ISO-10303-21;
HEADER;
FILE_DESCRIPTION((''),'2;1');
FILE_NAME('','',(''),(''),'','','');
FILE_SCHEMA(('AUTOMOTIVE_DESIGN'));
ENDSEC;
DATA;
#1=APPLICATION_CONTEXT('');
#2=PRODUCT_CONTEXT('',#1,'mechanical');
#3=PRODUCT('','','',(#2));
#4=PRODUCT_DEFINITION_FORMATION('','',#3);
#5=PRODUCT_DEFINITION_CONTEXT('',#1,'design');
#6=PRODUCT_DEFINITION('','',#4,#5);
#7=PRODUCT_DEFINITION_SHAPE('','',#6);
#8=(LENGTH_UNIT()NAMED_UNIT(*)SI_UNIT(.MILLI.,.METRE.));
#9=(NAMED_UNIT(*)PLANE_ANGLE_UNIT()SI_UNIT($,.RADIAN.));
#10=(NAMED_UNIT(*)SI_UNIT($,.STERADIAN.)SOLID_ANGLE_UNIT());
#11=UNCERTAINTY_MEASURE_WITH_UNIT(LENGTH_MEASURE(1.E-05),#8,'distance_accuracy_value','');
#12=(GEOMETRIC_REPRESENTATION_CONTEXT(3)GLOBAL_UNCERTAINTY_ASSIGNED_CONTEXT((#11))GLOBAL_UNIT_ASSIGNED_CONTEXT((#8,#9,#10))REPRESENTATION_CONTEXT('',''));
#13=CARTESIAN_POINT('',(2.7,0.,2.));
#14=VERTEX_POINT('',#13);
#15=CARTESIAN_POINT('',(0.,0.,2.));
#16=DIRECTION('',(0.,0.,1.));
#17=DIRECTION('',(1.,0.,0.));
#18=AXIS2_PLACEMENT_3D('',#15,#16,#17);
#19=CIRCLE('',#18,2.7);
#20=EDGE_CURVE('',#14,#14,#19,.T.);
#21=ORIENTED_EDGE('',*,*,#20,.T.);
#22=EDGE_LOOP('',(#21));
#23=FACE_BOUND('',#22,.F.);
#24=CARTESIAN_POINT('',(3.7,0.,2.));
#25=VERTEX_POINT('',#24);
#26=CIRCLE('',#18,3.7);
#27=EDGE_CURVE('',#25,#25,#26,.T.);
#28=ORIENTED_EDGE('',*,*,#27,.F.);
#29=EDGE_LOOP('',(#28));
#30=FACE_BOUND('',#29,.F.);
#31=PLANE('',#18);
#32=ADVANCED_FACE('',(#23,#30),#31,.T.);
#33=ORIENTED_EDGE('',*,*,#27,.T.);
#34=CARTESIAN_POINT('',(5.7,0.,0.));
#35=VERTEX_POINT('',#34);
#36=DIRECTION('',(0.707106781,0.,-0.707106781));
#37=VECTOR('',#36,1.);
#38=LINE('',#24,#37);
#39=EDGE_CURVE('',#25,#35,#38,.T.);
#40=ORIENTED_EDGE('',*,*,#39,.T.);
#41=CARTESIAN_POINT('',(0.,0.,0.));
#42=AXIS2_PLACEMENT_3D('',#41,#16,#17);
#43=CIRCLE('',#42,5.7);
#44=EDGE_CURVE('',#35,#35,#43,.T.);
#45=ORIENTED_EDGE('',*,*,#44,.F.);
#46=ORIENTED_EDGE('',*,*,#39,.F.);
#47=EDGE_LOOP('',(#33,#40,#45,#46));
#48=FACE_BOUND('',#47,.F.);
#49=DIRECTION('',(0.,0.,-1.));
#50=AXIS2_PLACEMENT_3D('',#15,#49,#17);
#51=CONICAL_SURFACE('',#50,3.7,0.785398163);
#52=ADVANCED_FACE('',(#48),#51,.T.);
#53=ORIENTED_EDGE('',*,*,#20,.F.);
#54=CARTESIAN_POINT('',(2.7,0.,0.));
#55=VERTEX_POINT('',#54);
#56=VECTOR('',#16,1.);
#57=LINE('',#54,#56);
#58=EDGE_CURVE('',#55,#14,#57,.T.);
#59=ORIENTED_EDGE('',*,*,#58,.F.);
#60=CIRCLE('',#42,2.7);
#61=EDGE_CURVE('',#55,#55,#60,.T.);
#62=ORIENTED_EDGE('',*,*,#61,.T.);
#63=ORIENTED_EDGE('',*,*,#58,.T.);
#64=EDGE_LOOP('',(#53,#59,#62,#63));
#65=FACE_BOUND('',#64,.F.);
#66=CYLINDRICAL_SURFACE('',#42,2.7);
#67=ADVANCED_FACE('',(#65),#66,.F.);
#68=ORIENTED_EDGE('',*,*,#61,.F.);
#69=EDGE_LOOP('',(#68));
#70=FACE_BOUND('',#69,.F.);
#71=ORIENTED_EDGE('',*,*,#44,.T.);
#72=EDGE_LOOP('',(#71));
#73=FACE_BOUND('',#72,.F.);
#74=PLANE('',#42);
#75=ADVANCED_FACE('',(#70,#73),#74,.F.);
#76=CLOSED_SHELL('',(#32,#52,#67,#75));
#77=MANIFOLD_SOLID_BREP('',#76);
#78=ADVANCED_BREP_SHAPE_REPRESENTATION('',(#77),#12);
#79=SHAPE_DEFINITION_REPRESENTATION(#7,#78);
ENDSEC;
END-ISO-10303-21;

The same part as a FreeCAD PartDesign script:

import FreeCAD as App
import Part
import Sketcher
from FreeCAD import Vector
Q = App.Units.Quantity


def add_polygon(sketch, points):
    """Adds a closed chain of lines whose ends are joined by coincident constraints."""
    first, n = sketch.GeometryCount, len(points)
    for a, b in zip(points, points[1:] + points[:1]):
        sketch.addGeometry(Part.LineSegment(App.Vector(*a, 0), App.Vector(*b, 0)), False)
    for i in range(n):
        sketch.addConstraint(Sketcher.Constraint("Coincident", first + i, 2, first + (i + 1) % n, 1))

doc = App.newDocument("Part")
params = doc.addObject("Spreadsheet::Sheet", "Params")
for row, (alias, value) in enumerate([
    ("sketch1_width", "1 mm"),
    ("sketch1_width2", "3 mm"),
    ("sketch1_height", "2 mm"),
    ("revolution_angle", "360 deg"),
], start=1):
    params.set(f"A{row}", alias)
    params.set(f"B{row}", "=" + value)
    params.setAlias(f"B{row}", alias)

body = doc.addObject("PartDesign::Body", "Body")

# Sketch on XZ plane
sketch1 = doc.addObject("Sketcher::SketchObject", "Sketch")
body.addObject(sketch1)
sketch1.AttachmentSupport = (doc.XZ_Plane, [""])
sketch1.MapMode = "FlatFace"
add_polygon(sketch1, [(5.7, 0), (3.7, 2), (2.7, 2), (2.7, 0)])  # lines 0-3
sketch1.addConstraint([
    Sketcher.Constraint("Horizontal", 1),
    Sketcher.Constraint("Vertical", 2),
    Sketcher.Constraint("Horizontal", 3),
    Sketcher.Constraint("PointOnObject", 2, 2, -1),
    Sketcher.Constraint("DistanceX", 1, 2, 1, 1, Q("1 mm")),
    Sketcher.Constraint("DistanceX", 3, 1, 3, 2, Q("3 mm")),
    Sketcher.Constraint("DistanceY", 2, 2, 2, 1, Q("2 mm")),
    Sketcher.Constraint("DistanceX", -1, 1, 0, 2, Q("3.7 mm")),
])
sketch1.setExpression("Constraints[8]", "Params.sketch1_width")
sketch1.setExpression("Constraints[9]", "Params.sketch1_width2")
sketch1.setExpression("Constraints[10]", "Params.sketch1_height")
revolution = doc.addObject("PartDesign::Revolution", "Revolution")
body.addObject(revolution)
revolution.Profile = sketch1
revolution.ReferenceAxis = (sketch1, ["V_Axis"])
revolution.setExpression("Angle", "Params.revolution_angle")

doc.recompute()
